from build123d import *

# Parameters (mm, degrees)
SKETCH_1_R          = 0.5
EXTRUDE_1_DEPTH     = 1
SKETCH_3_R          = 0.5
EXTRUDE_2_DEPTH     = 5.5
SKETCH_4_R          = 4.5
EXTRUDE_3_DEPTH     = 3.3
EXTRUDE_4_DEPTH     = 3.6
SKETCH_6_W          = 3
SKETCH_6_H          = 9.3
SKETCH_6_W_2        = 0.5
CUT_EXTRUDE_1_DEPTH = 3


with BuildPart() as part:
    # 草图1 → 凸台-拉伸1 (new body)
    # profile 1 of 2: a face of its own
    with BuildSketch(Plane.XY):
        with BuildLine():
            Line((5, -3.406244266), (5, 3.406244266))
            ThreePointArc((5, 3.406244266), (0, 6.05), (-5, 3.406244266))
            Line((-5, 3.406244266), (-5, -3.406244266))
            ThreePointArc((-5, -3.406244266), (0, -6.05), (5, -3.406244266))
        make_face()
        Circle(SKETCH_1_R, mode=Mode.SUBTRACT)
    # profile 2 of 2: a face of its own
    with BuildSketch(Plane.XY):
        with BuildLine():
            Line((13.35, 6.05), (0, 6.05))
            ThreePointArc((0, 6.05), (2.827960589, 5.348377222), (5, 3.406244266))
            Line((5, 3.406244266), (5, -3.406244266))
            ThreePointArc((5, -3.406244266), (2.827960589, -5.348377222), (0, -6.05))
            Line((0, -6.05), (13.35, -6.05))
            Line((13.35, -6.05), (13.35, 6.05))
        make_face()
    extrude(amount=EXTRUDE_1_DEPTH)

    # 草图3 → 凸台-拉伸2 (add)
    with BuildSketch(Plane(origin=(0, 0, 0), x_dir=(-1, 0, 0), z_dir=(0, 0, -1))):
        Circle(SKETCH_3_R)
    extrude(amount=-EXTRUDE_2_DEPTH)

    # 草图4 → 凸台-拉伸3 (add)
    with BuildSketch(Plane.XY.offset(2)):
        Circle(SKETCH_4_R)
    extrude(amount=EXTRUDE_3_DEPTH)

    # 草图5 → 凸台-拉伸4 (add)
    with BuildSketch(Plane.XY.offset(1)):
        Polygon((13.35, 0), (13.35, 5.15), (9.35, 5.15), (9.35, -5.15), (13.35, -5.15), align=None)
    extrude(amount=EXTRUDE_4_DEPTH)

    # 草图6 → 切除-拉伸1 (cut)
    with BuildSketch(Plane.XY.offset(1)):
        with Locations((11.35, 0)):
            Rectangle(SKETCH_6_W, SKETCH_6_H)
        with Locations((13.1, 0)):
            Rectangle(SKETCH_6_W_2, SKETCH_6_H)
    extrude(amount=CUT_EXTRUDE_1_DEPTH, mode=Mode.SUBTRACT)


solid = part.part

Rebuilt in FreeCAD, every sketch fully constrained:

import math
import FreeCAD as App
import Part
import Sketcher
Q = App.Units.Quantity

doc = App.newDocument("Part")
params = doc.addObject("Spreadsheet::Sheet", "Params")
for row, (alias, value) in enumerate([
    ("sketch1_diameter", "1 mm"),
    ("sketch1_radius", "6.05 mm"),
    ("sketch1_width", "13.35 mm"),
    ("pad1_length", "1 mm"),
    ("sketch2_diameter", "1 mm"),
    ("pad2_length", "5.5 mm"),
    ("sketch3_diameter", "9 mm"),
    ("pad3_length", "3.3 mm"),
    ("sketch4_width", "4 mm"),
    ("sketch4_height", "10.3 mm"),
    ("pad4_length", "3.6 mm"),
    ("sketch5_width", "3.5 mm"),
    ("sketch5_height", "9.3 mm"),
    ("pocket1_length", "3 mm"),
], start=1):
    params.set(f"A{row}", alias)
    params.set(f"B{row}", "=" + value)
    params.setAlias(f"B{row}", alias)

body = doc.addObject("PartDesign::Body", "Body")

# Sketch on XY plane
sketch1 = body.newObject("Sketcher::SketchObject", "Sketch")
sketch1.AttachmentSupport = (doc.getObject("XY_Plane"), [""])
sketch1.MapMode = "FlatFace"
sketch1.addGeometry([
    Part.ArcOfCircle(Part.Circle(App.Vector(0, 0, 0), App.Vector(0, 0, 1), 6), math.radians(-146), math.radians(-90)),  # 0
    Part.LineSegment(App.Vector(0, -6, 0), App.Vector(13.3, -6, 0)),  # 1
    Part.LineSegment(App.Vector(13.3, -6, 0), App.Vector(13.3, 6, 0)),  # 2
    Part.LineSegment(App.Vector(13.3, 6, 0), App.Vector(0, 6, 0)),  # 3
    Part.ArcOfCircle(Part.Circle(App.Vector(0, 0, 0), App.Vector(0, 0, 1), 6), math.radians(90), math.radians(146)),  # 4
    Part.LineSegment(App.Vector(-5, 3.4, 0), App.Vector(-5, -3.4, 0)),  # 5
    Part.Circle(App.Vector(0, 0, 0), App.Vector(0, 0, 1), 0.5),  # 6
], False)
sketch1.addConstraint([
    Sketcher.Constraint("Tangent", 0, 2, 1, 1),
    Sketcher.Constraint("Coincident", 1, 2, 2, 1),
    Sketcher.Constraint("Coincident", 2, 2, 3, 1),
    Sketcher.Constraint("Tangent", 3, 2, 4, 1),
    Sketcher.Constraint("Coincident", 4, 2, 5, 1),
    Sketcher.Constraint("Coincident", 5, 2, 0, 1),
    Sketcher.Constraint("Horizontal", 1),
    Sketcher.Constraint("Vertical", 2),
    Sketcher.Constraint("Horizontal", 3),
    Sketcher.Constraint("Vertical", 5),
    Sketcher.Constraint("Coincident", 0, 3, -1, 1),
    Sketcher.Constraint("Coincident", 4, 3, -1, 1),
    Sketcher.Constraint("Coincident", 6, 3, -1, 1),
    Sketcher.Constraint("Equal", 0, 4),
    Sketcher.Constraint("Diameter", 6, Q("1 mm")),
    Sketcher.Constraint("Radius", 0, Q("6.05 mm")),
    Sketcher.Constraint("DistanceX", 4, 2, -1, 1, Q("5 mm")),
    Sketcher.Constraint("DistanceX", 1, 1, 1, 2, Q("13.35 mm")),
])
sketch1.setExpression("Constraints[14]", "Params.sketch1_diameter")
sketch1.setExpression("Constraints[15]", "Params.sketch1_radius")
sketch1.setExpression("Constraints[17]", "Params.sketch1_width")
pad1 = body.newObject("PartDesign::Pad", "Pad")
pad1.Profile = sketch1
pad1.setExpression("Length", "Params.pad1_length")

# Sketch on XY plane
sketch2 = body.newObject("Sketcher::SketchObject", "Sketch001")
sketch2.AttachmentSupport = (doc.getObject("XY_Plane"), [""])
sketch2.MapMode = "FlatFace"
sketch2.addGeometry(Part.Circle(App.Vector(0, 0, 0), App.Vector(0, 0, 1), 0.5), False)
sketch2.addConstraint([
    Sketcher.Constraint("Coincident", 0, 3, -1, 1),
    Sketcher.Constraint("Diameter", 0, Q("1 mm")),
])
sketch2.setExpression("Constraints[1]", "Params.sketch2_diameter")
pad2 = body.newObject("PartDesign::Pad", "Pad001")
pad2.Profile = sketch2
pad2.setExpression("Length", "Params.pad2_length")

# Sketch on XY plane
sketch3 = body.newObject("Sketcher::SketchObject", "Sketch002")
sketch3.AttachmentSupport = (doc.getObject("XY_Plane"), [""])
sketch3.MapMode = "FlatFace"
sketch3.AttachmentOffset = App.Placement(App.Vector(0, 0, 2), App.Rotation())
sketch3.addGeometry(Part.Circle(App.Vector(0, 0, 0), App.Vector(0, 0, 1), 4.5), False)
sketch3.addConstraint([
    Sketcher.Constraint("Coincident", 0, 3, -1, 1),
    Sketcher.Constraint("Diameter", 0, Q("9 mm")),
])
sketch3.setExpression("Constraints[1]", "Params.sketch3_diameter")
pad3 = body.newObject("PartDesign::Pad", "Pad002")
pad3.Profile = sketch3
pad3.setExpression("Length", "Params.pad3_length")

# Sketch on XY plane
sketch4 = body.newObject("Sketcher::SketchObject", "Sketch003")
sketch4.AttachmentSupport = (doc.getObject("XY_Plane"), [""])
sketch4.MapMode = "FlatFace"
sketch4.AttachmentOffset = App.Placement(App.Vector(0, 0, 1), App.Rotation())
sketch4.addGeometry([
    Part.LineSegment(App.Vector(13.3, 5.2, 0), App.Vector(9.3, 5.2, 0)),
    Part.LineSegment(App.Vector(9.3, 5.2, 0), App.Vector(9.3, -5.2, 0)),
    Part.LineSegment(App.Vector(9.3, -5.2, 0), App.Vector(13.3, -5.2, 0)),
    Part.LineSegment(App.Vector(13.3, -5.2, 0), App.Vector(13.3, 5.2, 0)),
], False)
sketch4.addConstraint([
    Sketcher.Constraint("Coincident", 0, 2, 1, 1),
    Sketcher.Constraint("Coincident", 1, 2, 2, 1),
    Sketcher.Constraint("Coincident", 2, 2, 3, 1),
    Sketcher.Constraint("Coincident", 3, 2, 0, 1),
    Sketcher.Constraint("Horizontal", 0),
    Sketcher.Constraint("Vertical", 1),
    Sketcher.Constraint("Horizontal", 2),
    Sketcher.Constraint("Vertical", 3),
    Sketcher.Constraint("DistanceX", 0, 2, 0, 1, Q("4 mm")),
    Sketcher.Constraint("DistanceY", 1, 2, 1, 1, Q("10.3 mm")),
    Sketcher.Constraint("DistanceX", -1, 1, 0, 2, Q("9.35 mm")),
    Sketcher.Constraint("DistanceY", -1, 1, 0, 2, Q("5.15 mm")),
])
sketch4.setExpression("Constraints[8]", "Params.sketch4_width")
sketch4.setExpression("Constraints[9]", "Params.sketch4_height")
pad4 = body.newObject("PartDesign::Pad", "Pad003")
pad4.Profile = sketch4
pad4.setExpression("Length", "Params.pad4_length")

# Sketch on XY plane
sketch5 = body.newObject("Sketcher::SketchObject", "Sketch004")
sketch5.AttachmentSupport = (doc.getObject("XY_Plane"), [""])
sketch5.MapMode = "FlatFace"
sketch5.AttachmentOffset = App.Placement(App.Vector(0, 0, 1), App.Rotation())
sketch5.addGeometry([
    Part.LineSegment(App.Vector(9.8, 4.7, 0), App.Vector(9.8, -4.7, 0)),
    Part.LineSegment(App.Vector(9.8, -4.7, 0), App.Vector(13.3, -4.7, 0)),
    Part.LineSegment(App.Vector(13.3, -4.7, 0), App.Vector(13.3, 4.7, 0)),
    Part.LineSegment(App.Vector(13.3, 4.7, 0), App.Vector(9.8, 4.7, 0)),
], False)
sketch5.addConstraint([
    Sketcher.Constraint("Coincident", 0, 2, 1, 1),
    Sketcher.Constraint("Coincident", 1, 2, 2, 1),
    Sketcher.Constraint("Coincident", 2, 2, 3, 1),
    Sketcher.Constraint("Coincident", 3, 2, 0, 1),
    Sketcher.Constraint("Vertical", 0),
    Sketcher.Constraint("Horizontal", 1),
    Sketcher.Constraint("Vertical", 2),
    Sketcher.Constraint("Horizontal", 3),
    Sketcher.Constraint("DistanceX", 1, 1, 1, 2, Q("3.5 mm")),
    Sketcher.Constraint("DistanceY", 0, 2, 0, 1, Q("9.3 mm")),
    Sketcher.Constraint("DistanceX", -1, 1, 0, 2, Q("9.85 mm")),
    Sketcher.Constraint("DistanceY", 0, 2, -1, 1, Q("4.65 mm")),
])
sketch5.setExpression("Constraints[8]", "Params.sketch5_width")
sketch5.setExpression("Constraints[9]", "Params.sketch5_height")
pocket1 = body.newObject("PartDesign::Pocket", "Pocket")
pocket1.Profile = sketch5
pocket1.setExpression("Length", "Params.pocket1_length")
pocket1.Reversed = True

doc.recompute()
